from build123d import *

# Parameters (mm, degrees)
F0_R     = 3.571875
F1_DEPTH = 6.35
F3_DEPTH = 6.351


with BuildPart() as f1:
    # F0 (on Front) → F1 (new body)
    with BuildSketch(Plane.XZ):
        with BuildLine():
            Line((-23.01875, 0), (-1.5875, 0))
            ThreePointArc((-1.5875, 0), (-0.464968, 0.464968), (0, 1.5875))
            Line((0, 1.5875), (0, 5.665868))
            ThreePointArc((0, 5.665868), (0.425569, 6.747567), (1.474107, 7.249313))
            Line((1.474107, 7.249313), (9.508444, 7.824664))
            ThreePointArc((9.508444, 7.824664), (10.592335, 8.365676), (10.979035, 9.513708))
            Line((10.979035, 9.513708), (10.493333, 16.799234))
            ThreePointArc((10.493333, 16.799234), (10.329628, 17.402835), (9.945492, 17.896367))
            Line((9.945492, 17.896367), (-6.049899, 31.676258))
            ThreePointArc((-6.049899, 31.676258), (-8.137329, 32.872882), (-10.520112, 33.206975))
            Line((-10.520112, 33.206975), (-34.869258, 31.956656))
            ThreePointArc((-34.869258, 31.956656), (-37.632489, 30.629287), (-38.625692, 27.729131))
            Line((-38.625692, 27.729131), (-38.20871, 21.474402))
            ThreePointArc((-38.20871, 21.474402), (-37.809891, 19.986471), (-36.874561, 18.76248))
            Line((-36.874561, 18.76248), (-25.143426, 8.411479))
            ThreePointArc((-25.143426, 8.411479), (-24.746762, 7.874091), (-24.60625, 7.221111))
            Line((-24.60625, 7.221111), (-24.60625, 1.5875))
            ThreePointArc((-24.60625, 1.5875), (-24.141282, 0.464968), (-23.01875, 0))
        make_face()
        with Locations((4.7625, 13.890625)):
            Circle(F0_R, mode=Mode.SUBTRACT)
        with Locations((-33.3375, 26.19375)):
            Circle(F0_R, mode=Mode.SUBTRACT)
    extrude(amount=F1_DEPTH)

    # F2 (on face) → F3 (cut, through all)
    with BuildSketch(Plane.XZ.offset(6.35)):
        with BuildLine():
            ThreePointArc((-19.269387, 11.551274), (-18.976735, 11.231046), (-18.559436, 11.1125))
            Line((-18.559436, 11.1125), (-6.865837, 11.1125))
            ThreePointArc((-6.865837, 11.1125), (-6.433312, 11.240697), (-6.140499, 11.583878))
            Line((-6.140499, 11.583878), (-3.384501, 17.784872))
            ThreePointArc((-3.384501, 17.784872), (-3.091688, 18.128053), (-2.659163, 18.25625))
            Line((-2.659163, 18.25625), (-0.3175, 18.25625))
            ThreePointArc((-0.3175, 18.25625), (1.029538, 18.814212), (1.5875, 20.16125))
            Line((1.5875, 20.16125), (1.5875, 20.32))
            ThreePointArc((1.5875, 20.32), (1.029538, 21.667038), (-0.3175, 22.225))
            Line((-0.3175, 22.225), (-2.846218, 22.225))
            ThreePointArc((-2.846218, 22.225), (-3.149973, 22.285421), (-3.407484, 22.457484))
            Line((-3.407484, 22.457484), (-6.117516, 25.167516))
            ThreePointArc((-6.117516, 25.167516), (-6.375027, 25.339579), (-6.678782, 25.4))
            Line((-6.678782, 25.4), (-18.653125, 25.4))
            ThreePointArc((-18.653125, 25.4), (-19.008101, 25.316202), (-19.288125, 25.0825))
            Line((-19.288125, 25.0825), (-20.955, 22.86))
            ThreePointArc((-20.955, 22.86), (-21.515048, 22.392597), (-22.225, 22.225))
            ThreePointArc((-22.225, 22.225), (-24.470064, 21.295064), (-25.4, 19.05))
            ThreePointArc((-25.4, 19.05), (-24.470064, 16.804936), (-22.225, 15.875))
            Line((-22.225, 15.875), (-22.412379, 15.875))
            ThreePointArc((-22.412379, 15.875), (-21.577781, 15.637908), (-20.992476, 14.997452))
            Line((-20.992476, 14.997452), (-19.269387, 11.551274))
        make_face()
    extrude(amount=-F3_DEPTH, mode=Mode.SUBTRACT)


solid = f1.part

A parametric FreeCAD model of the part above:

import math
import FreeCAD as App
import Part
import Sketcher
Q = App.Units.Quantity

doc = App.newDocument("Part")
params = doc.addObject("Spreadsheet::Sheet", "Params")
for row, (alias, value) in enumerate([
    ("sketch1_diameter", "0.28125 in"),
    ("sketch1_radius", "0.0625 in"),
    ("sketch1_radius2", "0.15625 in"),
    ("sketch1_radius3", "0.15625 in"),
    ("sketch1_width", "0.84375 in"),
    ("pad1_length", "0.25 in"),
    ("sketch2_radius", "0.03125 in"),
    ("sketch2_radius2", "0.0750001 in"),
    ("sketch2_radius3", "0.0312498 in"),
    ("sketch2_radius4", "0.0625 in"),
    ("sketch2_radius5", "0.125 in"),
], start=1):
    params.set(f"A{row}", alias)
    params.set(f"B{row}", "=" + value)
    params.setAlias(f"B{row}", alias)

body = doc.addObject("PartDesign::Body", "Body")

sketch1 = body.newObject("Sketcher::SketchObject", "Sketch")
sketch1.AttachmentSupport = (doc.getObject("XZ_Plane"), [""])
sketch1.MapMode = "FlatFace"
sketch1.addGeometry(Part.LineSegment(App.Vector(-23.01875, 0, 0), App.Vector(-1.5875, 0, 0)), False)
sketch1.addGeometry(Part.ArcOfCircle(Part.Circle(App.Vector(-1.5875, 1.5875, 0), App.Vector(0, 0, 1), 1.5875), math.radians(-89.999998), math.radians(-0.000002)), False)
sketch1.addGeometry(Part.LineSegment(App.Vector(0, 1.5875, 0), App.Vector(0, 5.665868, 0)), False)
sketch1.addGeometry(Part.ArcOfCircle(Part.Circle(App.Vector(1.5875, 5.665868, 0), App.Vector(0, 0, 1), 1.5875), math.radians(94.096041), math.radians(180.000005)), False)
sketch1.addGeometry(Part.LineSegment(App.Vector(1.474107, 7.249313, 0), App.Vector(9.508444, 7.824664, 0)), False)
sketch1.addGeometry(Part.ArcOfCircle(Part.Circle(App.Vector(9.39505, 9.40811, 0), App.Vector(0, 0, 1), 1.587501), math.radians(-85.903934), math.radians(3.814055)), False)
sketch1.addGeometry(Part.LineSegment(App.Vector(10.979035, 9.513708, 0), App.Vector(10.493333, 16.799234, 0)), False)
sketch1.addGeometry(Part.ArcOfCircle(Part.Circle(App.Vector(8.909351, 16.693636, 0), App.Vector(0, 0, 1), 1.587498), math.radians(3.814044), math.radians(49.255422)), False)
sketch1.addGeometry(Part.LineSegment(App.Vector(9.945492, 17.896367, 0), App.Vector(-6.049899, 31.676258, 0)), False)
sketch1.addGeometry(Part.ArcOfCircle(Part.Circle(App.Vector(-10.194467, 26.86534, 0), App.Vector(0, 0, 1), 6.34999), math.radians(49.255357), math.radians(92.939572)), False)
sketch1.addGeometry(Part.LineSegment(App.Vector(-10.520112, 33.206975, 0), App.Vector(-34.869258, 31.956656, 0)), False)
sketch1.addGeometry(Part.ArcOfCircle(Part.Circle(App.Vector(-34.665733, 27.993129, 0), App.Vector(0, 0, 1), 3.968749), math.radians(92.939522), math.radians(183.814087)), False)
sketch1.addGeometry(Part.LineSegment(App.Vector(-38.625692, 27.729131, 0), App.Vector(-38.20871, 21.474402, 0)), False)
sketch1.addGeometry(Part.ArcOfCircle(Part.Circle(App.Vector(-34.248749, 21.738399, 0), App.Vector(0, 0, 1), 3.968751), math.radians(-176.185924), math.radians(-131.423671)), False)
sketch1.addGeometry(Part.LineSegment(App.Vector(-36.874561, 18.76248, 0), App.Vector(-25.143426, 8.411479, 0)), False)
sketch1.addGeometry(Part.ArcOfCircle(Part.Circle(App.Vector(-26.193747, 7.221112, 0), App.Vector(0, 0, 1), 1.587497), math.radians(-0.000045), math.radians(48.576392)), False)
sketch1.addGeometry(Part.LineSegment(App.Vector(-24.60625, 7.221111, 0), App.Vector(-24.60625, 1.5875, 0)), False)
sketch1.addGeometry(Part.ArcOfCircle(Part.Circle(App.Vector(-23.01875, 1.5875, 0), App.Vector(0, 0, 1), 1.5875), math.radians(-179.999998), math.radians(-90.000002)), False)
sketch1.addGeometry(Part.Circle(App.Vector(4.7625, 13.890625, 0), App.Vector(0, 0, 1), 3.571875), False)
sketch1.addGeometry(Part.Circle(App.Vector(-33.3375, 26.19375, 0), App.Vector(0, 0, 1), 3.571875), False)
sketch1.addConstraint(Sketcher.Constraint("Tangent", 0, 2, 1, 1))
sketch1.addConstraint(Sketcher.Constraint("Tangent", 1, 2, 2, 1))
sketch1.addConstraint(Sketcher.Constraint("Tangent", 2, 2, 3, 2))
sketch1.addConstraint(Sketcher.Constraint("Tangent", 3, 1, 4, 1))
sketch1.addConstraint(Sketcher.Constraint("Tangent", 4, 2, 5, 1))
sketch1.addConstraint(Sketcher.Constraint("Tangent", 5, 2, 6, 1))
sketch1.addConstraint(Sketcher.Constraint("Tangent", 6, 2, 7, 1))
sketch1.addConstraint(Sketcher.Constraint("Tangent", 7, 2, 8, 1))
sketch1.addConstraint(Sketcher.Constraint("Tangent", 8, 2, 9, 1))
sketch1.addConstraint(Sketcher.Constraint("Tangent", 9, 2, 10, 1))
sketch1.addConstraint(Sketcher.Constraint("Tangent", 10, 2, 11, 1))
sketch1.addConstraint(Sketcher.Constraint("Tangent", 11, 2, 12, 1))
sketch1.addConstraint(Sketcher.Constraint("Tangent", 12, 2, 13, 1))
sketch1.addConstraint(Sketcher.Constraint("Tangent", 13, 2, 14, 1))
sketch1.addConstraint(Sketcher.Constraint("Tangent", 14, 2, 15, 2))
sketch1.addConstraint(Sketcher.Constraint("Tangent", 15, 1, 16, 1))
sketch1.addConstraint(Sketcher.Constraint("Tangent", 16, 2, 17, 1))
sketch1.addConstraint(Sketcher.Constraint("Tangent", 17, 2, 0, 1))
sketch1.addConstraint(Sketcher.Constraint("Horizontal", 0))
sketch1.addConstraint(Sketcher.Constraint("Vertical", 2))
sketch1.addConstraint(Sketcher.Constraint("Vertical", 16))
sketch1.addConstraint(Sketcher.Constraint("Equal", 1, 3))
sketch1.addConstraint(Sketcher.Constraint("Equal", 3, 5))
sketch1.addConstraint(Sketcher.Constraint("Equal", 3, 7))
sketch1.addConstraint(Sketcher.Constraint("Equal", 7, 15))
sketch1.addConstraint(Sketcher.Constraint("Equal", 5, 17))
sketch1.addConstraint(Sketcher.Constraint("Equal", 18, 19))
sketch1.addConstraint(Sketcher.Constraint("PointOnObject", 0, 2, -1))
sketch1.addConstraint(Sketcher.Constraint("PointOnObject", 1, 2, -2))
sketch1.addConstraint(Sketcher.Constraint("Parallel", 6, 12))
sketch1.addConstraint(Sketcher.Constraint("Diameter", 18, Q("0.28125 in")))
sketch1.addConstraint(Sketcher.Constraint("Radius", 1, Q("0.0625 in")))
sketch1.addConstraint(Sketcher.Constraint("Radius", 11, Q("0.15625 in")))
sketch1.addConstraint(Sketcher.Constraint("Radius", 13, Q("0.15625 in")))
sketch1.addConstraint(Sketcher.Constraint("DistanceX", 0, 1, 0, 2, Q("0.84375 in")))
sketch1.addConstraint(Sketcher.Constraint("DistanceX", 1, 3, 18, 3, Q("0.25 in")))
sketch1.addConstraint(Sketcher.Constraint("DistanceY", -1, 1, 18, 3, Q("0.546875 in")))
sketch1.addConstraint(Sketcher.Constraint("DistanceX", 19, 3, -1, 1, Q("1.3125 in")))
sketch1.addConstraint(Sketcher.Constraint("DistanceY", -1, 1, 19, 3, Q("1.03125 in")))
sketch1.addConstraint(Sketcher.Constraint("Radius", 9, 6.34999))
sketch1.addConstraint(Sketcher.Constraint("Distance", 6, 7.301698))
sketch1.addConstraint(Sketcher.Constraint("DistanceY", 16, 2, 16, 1, 5.633611))
sketch1.addConstraint(Sketcher.Constraint("DistanceY", -1, 1, 13, 3, 21.738399))
sketch1.addConstraint(Sketcher.Constraint("DistanceX", 8, 2, -1, 1, 6.049899))
sketch1.addConstraint(Sketcher.Constraint("DistanceX", 7, 3, 5, 3, 0.485699))
sketch1.addConstraint(Sketcher.Constraint("DistanceX", 13, 3, 7, 3, 43.1581))
sketch1.addConstraint(Sketcher.Constraint("DistanceX", 13, 3, 15, 3, 8.055002))
sketch1.addConstraint(Sketcher.Constraint("Distance", 4, 8.054912))
sketch1.addConstraint(Sketcher.Constraint("DistanceY", 2, 1, 2, 2, 4.078368))
sketch1.addConstraint(Sketcher.Constraint("DistanceY", -1, 1, 9, 3, 26.86534))
sketch1.addConstraint(Sketcher.Constraint("DistanceY", -1, 1, 11, 3, 27.993129))
sketch1.setExpression("Constraints[30]", "Params.sketch1_diameter")
sketch1.setExpression("Constraints[31]", "Params.sketch1_radius")
sketch1.setExpression("Constraints[32]", "Params.sketch1_radius2")
sketch1.setExpression("Constraints[33]", "Params.sketch1_radius3")
sketch1.setExpression("Constraints[34]", "Params.sketch1_width")
pad1 = body.newObject("PartDesign::Pad", "Pad")
pad1.Profile = sketch1
pad1.setExpression("Length", "Params.pad1_length")

sketch2 = body.newObject("Sketcher::SketchObject", "Sketch001")
sketch2.AttachmentSupport = (doc.getObject("XZ_Plane"), [""])
sketch2.MapMode = "FlatFace"
sketch2.AttachmentOffset = App.Placement(App.Vector(0, 0, 0.25 * 25.4), App.Rotation())
sketch2.addGeometry(Part.ArcOfCircle(Part.Circle(App.Vector(-18.559436, 11.906249, 0), App.Vector(0, 0, 1), 0.793749), math.radians(-153.434969), math.radians(-89.999997)), False)
sketch2.addGeometry(Part.LineSegment(App.Vector(-18.559436, 11.1125, 0), App.Vector(-6.865837, 11.1125, 0)), False)
sketch2.addGeometry(Part.ArcOfCircle(Part.Circle(App.Vector(-6.865838, 11.906251, 0), App.Vector(0, 0, 1), 0.793751), math.radians(-89.999946), math.radians(-23.962504)), False)
sketch2.addGeometry(Part.LineSegment(App.Vector(-6.140499, 11.583878, 0), App.Vector(-3.384501, 17.784872, 0)), False)
sketch2.addGeometry(Part.ArcOfCircle(Part.Circle(App.Vector(-2.659162, 17.462499, 0), App.Vector(0, 0, 1), 0.793751), math.radians(90.000054), math.radians(156.037496)), False)
sketch2.addGeometry(Part.LineSegment(App.Vector(-2.659163, 18.25625, 0), App.Vector(-0.3175, 18.25625, 0)), False)
sketch2.addGeometry(Part.ArcOfCircle(Part.Circle(App.Vector(-0.317501, 20.161251, 0), App.Vector(0, 0, 1), 1.905001), math.radians(-89.999957), math.radians(-0.000043)), False)
sketch2.addGeometry(Part.LineSegment(App.Vector(1.5875, 20.16125, 0), App.Vector(1.5875, 20.32, 0)), False)
sketch2.addGeometry(Part.ArcOfCircle(Part.Circle(App.Vector(-0.317501, 20.319999, 0), App.Vector(0, 0, 1), 1.905001), math.radians(0.000043), math.radians(89.999957)), False)
sketch2.addGeometry(Part.LineSegment(App.Vector(-0.3175, 22.225, 0), App.Vector(-2.846218, 22.225, 0)), False)
sketch2.addGeometry(Part.ArcOfCircle(Part.Circle(App.Vector(-2.846216, 23.018754, 0), App.Vector(0, 0, 1), 0.793754), math.radians(-134.999879), math.radians(-90.000122)), False)
sketch2.addGeometry(Part.LineSegment(App.Vector(-3.407484, 22.457484, 0), App.Vector(-6.117516, 25.167516, 0)), False)
sketch2.addGeometry(Part.ArcOfCircle(Part.Circle(App.Vector(-6.678784, 24.606246, 0), App.Vector(0, 0, 1), 0.793754), math.radians(45.000121), math.radians(89.999878)), False)
sketch2.addGeometry(Part.LineSegment(App.Vector(-6.678782, 25.4, 0), App.Vector(-18.653125, 25.4, 0)), False)
sketch2.addGeometry(Part.ArcOfCircle(Part.Circle(App.Vector(-18.653127, 24.606254, 0), App.Vector(0, 0, 1), 0.793746), math.radians(89.999857), math.radians(143.130245)), False)
sketch2.addGeometry(Part.LineSegment(App.Vector(-19.288125, 25.0825, 0), App.Vector(-20.955, 22.86, 0)), False)
sketch2.addGeometry(Part.ArcOfCircle(Part.Circle(App.Vector(-22.225, 23.8125, 0), App.Vector(0, 0, 1), 1.5875), math.radians(-90.000006), math.radians(-36.869892)), False)
sketch2.addGeometry(Part.ArcOfCircle(Part.Circle(App.Vector(-22.225, 19.05, 0), App.Vector(0, 0, 1), 3.175), math.radians(90.000002), math.radians(179.999998)), False)
sketch2.addGeometry(Part.ArcOfCircle(Part.Circle(App.Vector(-22.225, 19.05, 0), App.Vector(0, 0, 1), 3.175), math.radians(-179.999998), math.radians(-90.000002)), False)
sketch2.addGeometry(Part.LineSegment(App.Vector(-22.225, 15.875, 0), App.Vector(-22.412379, 15.875, 0)), False)
sketch2.addGeometry(Part.ArcOfCircle(Part.Circle(App.Vector(-22.41238, 14.287499, 0), App.Vector(0, 0, 1), 1.587501), math.radians(26.565097), math.radians(89.999972)), False)
sketch2.addGeometry(Part.LineSegment(App.Vector(-20.992476, 14.997452, 0), App.Vector(-19.269387, 11.551274, 0)), False)
sketch2.addConstraint(Sketcher.Constraint("Tangent", 0, 2, 1, 1))
sketch2.addConstraint(Sketcher.Constraint("Tangent", 1, 2, 2, 1))
sketch2.addConstraint(Sketcher.Constraint("Tangent", 2, 2, 3, 1))
sketch2.addConstraint(Sketcher.Constraint("Tangent", 3, 2, 4, 2))
sketch2.addConstraint(Sketcher.Constraint("Tangent", 4, 1, 5, 1))
sketch2.addConstraint(Sketcher.Constraint("Tangent", 5, 2, 6, 1))
sketch2.addConstraint(Sketcher.Constraint("Tangent", 6, 2, 7, 1))
sketch2.addConstraint(Sketcher.Constraint("Tangent", 7, 2, 8, 1))
sketch2.addConstraint(Sketcher.Constraint("Tangent", 8, 2, 9, 1))
sketch2.addConstraint(Sketcher.Constraint("Coincident", 9, 2, 10, 2))
sketch2.addConstraint(Sketcher.Constraint("Coincident", 10, 1, 11, 1))
sketch2.addConstraint(Sketcher.Constraint("Coincident", 11, 2, 12, 1))
sketch2.addConstraint(Sketcher.Constraint("Coincident", 12, 2, 13, 1))
sketch2.addConstraint(Sketcher.Constraint("Coincident", 13, 2, 14, 1))
sketch2.addConstraint(Sketcher.Constraint("Coincident", 14, 2, 15, 1))
sketch2.addConstraint(Sketcher.Constraint("Tangent", 15, 2, 16, 2))
sketch2.addConstraint(Sketcher.Constraint("Tangent", 16, 1, 17, 1))
sketch2.addConstraint(Sketcher.Constraint("Tangent", 17, 2, 18, 1))
sketch2.addConstraint(Sketcher.Constraint("Tangent", 18, 2, 19, 1))
sketch2.addConstraint(Sketcher.Constraint("Tangent", 19, 2, 20, 2))
sketch2.addConstraint(Sketcher.Constraint("Tangent", 20, 1, 21, 1))
sketch2.addConstraint(Sketcher.Constraint("Tangent", 21, 2, 0, 1))
sketch2.addConstraint(Sketcher.Constraint("Horizontal", 1))
sketch2.addConstraint(Sketcher.Constraint("Horizontal", 5))
sketch2.addConstraint(Sketcher.Constraint("Vertical", 7))
sketch2.addConstraint(Sketcher.Constraint("Horizontal", 9))
sketch2.addConstraint(Sketcher.Constraint("Horizontal", 13))
sketch2.addConstraint(Sketcher.Constraint("Horizontal", 19))
sketch2.addConstraint(Sketcher.Constraint("Equal", 0, 2))
sketch2.addConstraint(Sketcher.Constraint("Equal", 2, 4))
sketch2.addConstraint(Sketcher.Constraint("Equal", 6, 8))
sketch2.addConstraint(Sketcher.Constraint("Equal", 10, 12))
sketch2.addConstraint(Sketcher.Constraint("Equal", 17, 18))
sketch2.addConstraint(Sketcher.Constraint("Equal", 16, 20))
sketch2.addConstraint(Sketcher.Constraint("Horizontal", 9, 2, 16, 1))
sketch2.addConstraint(Sketcher.Constraint("Horizontal", 18, 3, 17, 2))
sketch2.addConstraint(Sketcher.Constraint("Vertical", 16, 3, 17, 3))
sketch2.addConstraint(Sketcher.Constraint("Vertical", 10, 3, 9, 2))
sketch2.addConstraint(Sketcher.Constraint("Vertical", 14, 3, 13, 2))
sketch2.addConstraint(Sketcher.Constraint("DistanceY", -1, 1, 12, 2, Q("1 in")))
sketch2.addConstraint(Sketcher.Constraint("DistanceX", 17, 2, -1, 1, Q("1 in")))
sketch2.addConstraint(Sketcher.Constraint("Angle", 11, Q("135 deg")))
sketch2.addConstraint(Sketcher.Constraint("Radius", 0, Q("0.03125 in")))
sketch2.addConstraint(Sketcher.Constraint("Radius", 6, Q("0.0750001 in")))
sketch2.addConstraint(Sketcher.Constraint("Radius", 14, Q("0.0312498 in")))
sketch2.addConstraint(Sketcher.Constraint("Radius", 16, Q("0.0625 in")))
sketch2.addConstraint(Sketcher.Constraint("Radius", 17, Q("0.125 in")))
sketch2.addConstraint(Sketcher.Constraint("DistanceY", -1, 1, 8, 3, Q("0.7999999 in")))
sketch2.addConstraint(Sketcher.Constraint("DistanceY", -1, 1, 15, 2, Q("0.9 in")))
sketch2.addConstraint(Sketcher.Constraint("DistanceY", 2, 3, 12, 3, Q("0.4999998 in")))
sketch2.addConstraint(Sketcher.Constraint("DistanceY", 0, 3, 14, 3, Q("0.5000002 in")))
sketch2.addConstraint(Sketcher.Constraint("DistanceY", 1, 2, 4, 3, Q("0.25 in")))
sketch2.addConstraint(Sketcher.Constraint("DistanceY", 16, 3, 14, 2, Q("0.05 in")))
sketch2.addConstraint(Sketcher.Constraint("DistanceX", -1, 1, 6, 2, Q("0.0625 in")))
sketch2.addConstraint(Sketcher.Constraint("DistanceX", 1, 1, 1, 2, 11.693599))
sketch2.addConstraint(Sketcher.Constraint("DistanceX", 9, 2, 9, 1, 2.528718))
sketch2.addConstraint(Sketcher.Constraint("DistanceX", 19, 2, 19, 1, 0.187379))
sketch2.addConstraint(Sketcher.Constraint("DistanceX", 2, 2, -1, 1, 6.140499))
sketch2.addConstraint(Sketcher.Constraint("DistanceX", 3, 2, -1, 1, 3.384501))
sketch2.addConstraint(Sketcher.Constraint("DistanceX", 11, 2, 10, 3, 3.2713))
sketch2.addConstraint(Sketcher.Constraint("DistanceX", 12, 2, 10, 1, 3.271298))
sketch2.addConstraint(Sketcher.Constraint("DistanceX", 13, 2, 13, 1, 11.974343))
sketch2.setExpression("Constraints[42]", "Params.sketch2_radius")
sketch2.setExpression("Constraints[43]", "Params.sketch2_radius2")
sketch2.setExpression("Constraints[44]", "Params.sketch2_radius3")
sketch2.setExpression("Constraints[45]", "Params.sketch2_radius4")
sketch2.setExpression("Constraints[46]", "Params.sketch2_radius5")
pocket1 = body.newObject("PartDesign::Pocket", "Pocket")
pocket1.Profile = sketch2
pocket1.Type = "ThroughAll"

doc.recompute()
